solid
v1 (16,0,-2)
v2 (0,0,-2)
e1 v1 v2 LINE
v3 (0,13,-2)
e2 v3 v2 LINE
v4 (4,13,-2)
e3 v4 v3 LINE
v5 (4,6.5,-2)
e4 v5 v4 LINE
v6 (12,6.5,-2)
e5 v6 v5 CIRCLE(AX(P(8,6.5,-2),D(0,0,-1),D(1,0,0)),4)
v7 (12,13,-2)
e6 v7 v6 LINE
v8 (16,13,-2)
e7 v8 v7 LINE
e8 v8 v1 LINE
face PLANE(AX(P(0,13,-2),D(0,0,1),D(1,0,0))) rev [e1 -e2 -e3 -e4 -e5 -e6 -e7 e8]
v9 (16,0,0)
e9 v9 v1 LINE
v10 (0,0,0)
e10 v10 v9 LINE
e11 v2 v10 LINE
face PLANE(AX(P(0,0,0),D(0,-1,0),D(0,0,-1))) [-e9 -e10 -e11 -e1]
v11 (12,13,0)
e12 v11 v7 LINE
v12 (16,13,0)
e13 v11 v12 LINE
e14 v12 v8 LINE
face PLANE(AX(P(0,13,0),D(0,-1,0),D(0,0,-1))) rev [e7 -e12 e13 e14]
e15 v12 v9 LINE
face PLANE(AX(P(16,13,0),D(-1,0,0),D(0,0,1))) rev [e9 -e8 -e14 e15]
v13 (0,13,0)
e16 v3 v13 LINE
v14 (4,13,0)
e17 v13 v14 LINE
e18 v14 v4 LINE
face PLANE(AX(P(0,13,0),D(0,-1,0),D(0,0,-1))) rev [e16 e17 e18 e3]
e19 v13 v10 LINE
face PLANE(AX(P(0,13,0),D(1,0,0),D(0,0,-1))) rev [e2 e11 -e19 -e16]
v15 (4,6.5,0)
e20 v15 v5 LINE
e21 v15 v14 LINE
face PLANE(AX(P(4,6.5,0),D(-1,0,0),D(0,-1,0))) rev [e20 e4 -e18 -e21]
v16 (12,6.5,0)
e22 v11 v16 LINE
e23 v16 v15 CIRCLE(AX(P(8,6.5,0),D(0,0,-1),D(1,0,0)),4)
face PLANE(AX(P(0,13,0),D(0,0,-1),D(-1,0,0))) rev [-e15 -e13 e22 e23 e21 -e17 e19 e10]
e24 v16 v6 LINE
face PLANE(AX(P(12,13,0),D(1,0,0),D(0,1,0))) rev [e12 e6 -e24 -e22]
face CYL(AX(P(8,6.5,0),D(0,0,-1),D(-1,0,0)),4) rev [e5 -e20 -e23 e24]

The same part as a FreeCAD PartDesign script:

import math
import FreeCAD as App
import Part
import Sketcher
from FreeCAD import Vector
Q = App.Units.Quantity

doc = App.newDocument("Part")
body = doc.addObject("PartDesign::Body", "Body")

sketch1 = body.newObject("Sketcher::SketchObject", "Sketch")
sketch1.AttachmentSupport = (doc.getObject("XZ_Plane"), [""])
sketch1.MapMode = "FlatFace"
sketch1.addGeometry(Part.LineSegment(Vector(0, -2, 0), Vector(0, 0, 0)), False)
sketch1.addGeometry(Part.LineSegment(Vector(0, 0, 0), Vector(16, 0, 0)), False)
sketch1.addGeometry(Part.LineSegment(Vector(16, 0, 0), Vector(16, -2, 0)), False)
sketch1.addGeometry(Part.LineSegment(Vector(16, -2, 0), Vector(0, -2, 0)), False)
sketch1.addConstraint(Sketcher.Constraint("Coincident", 0, 2, 1, 1))
sketch1.addConstraint(Sketcher.Constraint("Coincident", 1, 2, 2, 1))
sketch1.addConstraint(Sketcher.Constraint("Coincident", 2, 2, 3, 1))
sketch1.addConstraint(Sketcher.Constraint("Coincident", 3, 2, 0, 1))
sketch1.addConstraint(Sketcher.Constraint("Vertical", 0))
sketch1.addConstraint(Sketcher.Constraint("Horizontal", 1))
sketch1.addConstraint(Sketcher.Constraint("Vertical", 2))
sketch1.addConstraint(Sketcher.Constraint("Horizontal", 3))
sketch1.addConstraint(Sketcher.Constraint("Coincident", 0, 2, -1, 1))
sketch1.addConstraint(Sketcher.Constraint("DistanceX", 1, 1, 1, 2, Q("16 mm")))
sketch1.addConstraint(Sketcher.Constraint("DistanceY", 0, 1, 0, 2, Q("2 mm")))
pad1 = body.newObject("PartDesign::Pad", "Pad")
pad1.Profile = sketch1
pad1.Length = 13
pad1.Reversed = True

sketch2 = body.newObject("Sketcher::SketchObject", "Sketch001")
sketch2.AttachmentSupport = (doc.getObject("XY_Plane"), [""])
sketch2.MapMode = "FlatFace"
sketch2.AttachmentOffset = App.Placement(Vector(0, 0, -2), App.Rotation())
sketch2.addGeometry(Part.LineSegment(Vector(4, 6.5, 0), Vector(4, 13, 0)), False)
sketch2.addGeometry(Part.LineSegment(Vector(4, 13, 0), Vector(12, 13, 0)), False)
sketch2.addGeometry(Part.LineSegment(Vector(12, 13, 0), Vector(12, 6.5, 0)), False)
sketch2.addGeometry(Part.ArcOfCircle(Part.Circle(Vector(8, 6.5, 0), Vector(0, 0, 1), 4), math.radians(180), math.radians(360)), False)
sketch2.addConstraint(Sketcher.Constraint("Coincident", 0, 2, 1, 1))
sketch2.addConstraint(Sketcher.Constraint("Coincident", 1, 2, 2, 1))
sketch2.addConstraint(Sketcher.Constraint("Tangent", 2, 2, 3, 2))
sketch2.addConstraint(Sketcher.Constraint("Tangent", 3, 1, 0, 1))
sketch2.addConstraint(Sketcher.Constraint("Vertical", 0))
sketch2.addConstraint(Sketcher.Constraint("Horizontal", 1))
sketch2.addConstraint(Sketcher.Constraint("Vertical", 2))
sketch2.addConstraint(Sketcher.Constraint("Radius", 3, Q("4 mm")))
sketch2.addConstraint(Sketcher.Constraint("DistanceY", 0, 1, 0, 2, Q("6.5 mm")))
sketch2.addConstraint(Sketcher.Constraint("DistanceX", -1, 1, 3, 3, Q("8 mm")))
sketch2.addConstraint(Sketcher.Constraint("DistanceY", -1, 1, 0, 2, Q("13 mm")))
pocket1 = body.newObject("PartDesign::Pocket", "Pocket")
pocket1.Profile = sketch2
pocket1.Type = "ThroughAll"
pocket1.Reversed = True

doc.recompute()
